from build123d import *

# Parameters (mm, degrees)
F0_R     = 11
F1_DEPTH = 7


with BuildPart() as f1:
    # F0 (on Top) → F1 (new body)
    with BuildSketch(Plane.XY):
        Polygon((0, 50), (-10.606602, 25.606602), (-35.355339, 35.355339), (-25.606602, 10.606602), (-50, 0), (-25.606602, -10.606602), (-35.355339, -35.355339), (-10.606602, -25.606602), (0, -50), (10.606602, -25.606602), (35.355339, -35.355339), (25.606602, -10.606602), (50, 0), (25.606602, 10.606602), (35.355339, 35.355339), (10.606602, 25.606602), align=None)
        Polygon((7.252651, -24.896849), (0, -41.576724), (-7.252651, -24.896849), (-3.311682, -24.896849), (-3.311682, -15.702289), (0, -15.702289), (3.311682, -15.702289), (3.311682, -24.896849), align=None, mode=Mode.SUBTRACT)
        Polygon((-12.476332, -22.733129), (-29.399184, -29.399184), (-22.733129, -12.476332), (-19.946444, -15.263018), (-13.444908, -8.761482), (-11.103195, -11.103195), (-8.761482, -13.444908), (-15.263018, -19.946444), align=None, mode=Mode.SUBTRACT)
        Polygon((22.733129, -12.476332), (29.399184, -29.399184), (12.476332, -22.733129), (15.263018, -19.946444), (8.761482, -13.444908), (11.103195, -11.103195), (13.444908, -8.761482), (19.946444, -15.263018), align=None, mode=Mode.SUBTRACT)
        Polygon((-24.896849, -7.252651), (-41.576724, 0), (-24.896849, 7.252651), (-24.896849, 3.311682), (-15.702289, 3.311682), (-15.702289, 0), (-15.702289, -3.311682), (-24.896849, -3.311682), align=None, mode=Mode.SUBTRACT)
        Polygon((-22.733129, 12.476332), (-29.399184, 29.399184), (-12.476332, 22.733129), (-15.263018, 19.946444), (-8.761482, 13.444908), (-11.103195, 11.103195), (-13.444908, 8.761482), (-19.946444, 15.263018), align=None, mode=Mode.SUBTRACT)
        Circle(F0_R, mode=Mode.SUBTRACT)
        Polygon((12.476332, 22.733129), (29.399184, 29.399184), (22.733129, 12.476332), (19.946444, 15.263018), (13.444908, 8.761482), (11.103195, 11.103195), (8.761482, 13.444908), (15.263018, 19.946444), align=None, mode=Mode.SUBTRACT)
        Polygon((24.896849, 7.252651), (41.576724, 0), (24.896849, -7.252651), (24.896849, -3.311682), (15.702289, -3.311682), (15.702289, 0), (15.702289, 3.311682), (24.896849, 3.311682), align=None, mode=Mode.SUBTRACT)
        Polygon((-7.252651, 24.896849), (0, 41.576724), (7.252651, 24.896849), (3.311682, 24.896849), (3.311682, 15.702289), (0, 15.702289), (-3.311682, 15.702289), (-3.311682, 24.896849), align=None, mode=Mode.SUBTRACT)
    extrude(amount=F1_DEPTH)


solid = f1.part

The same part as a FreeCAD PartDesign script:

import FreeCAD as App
import Part
import Sketcher
from FreeCAD import Vector


def add_polygon(sketch, points):
    """Adds a closed chain of lines whose ends are joined by coincident constraints."""
    first, n = sketch.GeometryCount, len(points)
    for a, b in zip(points, points[1:] + points[:1]):
        sketch.addGeometry(Part.LineSegment(App.Vector(*a, 0), App.Vector(*b, 0)), False)
    for i in range(n):
        sketch.addConstraint(Sketcher.Constraint("Coincident", first + i, 2, first + (i + 1) % n, 1))

doc = App.newDocument("Part")
body = doc.addObject("PartDesign::Body", "Body")

# Sketch on XY plane
sketch1 = body.newObject("Sketcher::SketchObject", "Sketch")
sketch1.AttachmentSupport = (doc.getObject("XY_Plane"), [""])
sketch1.MapMode = "FlatFace"
add_polygon(sketch1, [(0, 50), (-10.6, 25.6), (-35.4, 35.4), (-25.6, 10.6), (-50, 0), (-25.6, -10.6), (-35.4, -35.4), (-10.6, -25.6), (0, -50), (10.6, -25.6), (35.4, -35.4), (25.6, -10.6), (50, 0), (25.6, 10.6), (35.4, 35.4), (10.6, 25.6)])  # lines 0-15
add_polygon(sketch1, [(-15.3, -19.9), (-12.5, -22.7), (-29.4, -29.4), (-22.7, -12.5), (-19.9, -15.3), (-13.4, -8.8), (-8.8, -13.4)])  # lines 16-22
add_polygon(sketch1, [(3.3, -24.9), (7.3, -24.9), (0, -41.6), (-7.3, -24.9), (-3.3, -24.9), (-3.3, -15.7), (3.3, -15.7)])  # lines 23-29
add_polygon(sketch1, [(19.9, -15.3), (22.7, -12.5), (29.4, -29.4), (12.5, -22.7), (15.3, -19.9), (8.8, -13.4), (13.4, -8.8)])  # lines 30-36
add_polygon(sketch1, [(-24.9, -3.3), (-24.9, -7.3), (-41.6, 0), (-24.9, 7.3), (-24.9, 3.3), (-15.7, 3.3), (-15.7, -3.3)])  # lines 37-43
add_polygon(sketch1, [(-19.9, 15.3), (-22.7, 12.5), (-29.4, 29.4), (-12.5, 22.7), (-15.3, 19.9), (-8.8, 13.4), (-13.4, 8.8)])  # lines 44-50
sketch1.addGeometry(Part.Circle(Vector(0, 0, 0), Vector(0, 0, 1), 11), False)  # 51
add_polygon(sketch1, [(15.3, 19.9), (12.5, 22.7), (29.4, 29.4), (22.7, 12.5), (19.9, 15.3), (13.4, 8.8), (8.8, 13.4)])  # lines 52-58
add_polygon(sketch1, [(24.9, 3.3), (24.9, 7.3), (41.6, 0), (24.9, -7.3), (24.9, -3.3), (15.7, -3.3), (15.7, 3.3)])  # lines 59-65
add_polygon(sketch1, [(-3.3, 24.9), (-7.3, 24.9), (0, 41.6), (7.3, 24.9), (3.3, 24.9), (3.3, 15.7), (-3.3, 15.7)])  # lines 66-72
sketch1.addConstraint([
    Sketcher.Constraint("Horizontal", 23),
    Sketcher.Constraint("Horizontal", 26),
    Sketcher.Constraint("Vertical", 27),
    Sketcher.Constraint("Horizontal", 28),
    Sketcher.Constraint("Vertical", 29),
    Sketcher.Constraint("Vertical", 37),
    Sketcher.Constraint("Vertical", 40),
    Sketcher.Constraint("Horizontal", 41),
    Sketcher.Constraint("Vertical", 42),
    Sketcher.Constraint("Horizontal", 43),
    Sketcher.Constraint("Vertical", 59),
    Sketcher.Constraint("Vertical", 62),
    Sketcher.Constraint("Horizontal", 63),
    Sketcher.Constraint("Vertical", 64),
    Sketcher.Constraint("Horizontal", 65),
    Sketcher.Constraint("Horizontal", 66),
    Sketcher.Constraint("Horizontal", 69),
    Sketcher.Constraint("Vertical", 70),
    Sketcher.Constraint("Horizontal", 71),
    Sketcher.Constraint("Vertical", 72),
    Sketcher.Constraint("Coincident", 51, 3, -1, 1),
    Sketcher.Constraint("Symmetric", 0, 2, 8, 2, -1, 1),
    Sketcher.Constraint("Symmetric", 1, 2, 9, 2, -1, 1),
    Sketcher.Constraint("Symmetric", 2, 2, 10, 2, -1, 1),
    Sketcher.Constraint("Symmetric", 3, 2, 11, 2, -1, 1),
    Sketcher.Constraint("Symmetric", 4, 2, 12, 2, -1, 1),
    Sketcher.Constraint("Symmetric", 5, 2, 13, 2, -1, 1),
    Sketcher.Constraint("Symmetric", 6, 2, 14, 2, -1, 1),
    Sketcher.Constraint("Symmetric", 7, 2, 15, 2, -1, 1),
    Sketcher.Constraint("Symmetric", 30, 2, 44, 2, -1, 1),
    Sketcher.Constraint("Symmetric", 31, 2, 45, 2, -1, 1),
    Sketcher.Constraint("Symmetric", 32, 2, 46, 2, -1, 1),
    Sketcher.Constraint("Symmetric", 33, 2, 47, 2, -1, 1),
    Sketcher.Constraint("Symmetric", 34, 2, 48, 2, -1, 1),
    Sketcher.Constraint("Symmetric", 35, 2, 49, 2, -1, 1),
    Sketcher.Constraint("Symmetric", 36, 2, 50, 2, -1, 1),
    Sketcher.Constraint("Symmetric", 16, 2, 52, 2, -1, 1),
    Sketcher.Constraint("Symmetric", 17, 2, 53, 2, -1, 1),
    Sketcher.Constraint("Symmetric", 18, 2, 54, 2, -1, 1),
    Sketcher.Constraint("Symmetric", 19, 2, 55, 2, -1, 1),
    Sketcher.Constraint("Symmetric", 20, 2, 56, 2, -1, 1),
    Sketcher.Constraint("Symmetric", 21, 2, 57, 2, -1, 1),
    Sketcher.Constraint("Symmetric", 22, 2, 58, 2, -1, 1),
    Sketcher.Constraint("Symmetric", 37, 2, 59, 2, -1, 1),
    Sketcher.Constraint("Symmetric", 38, 2, 60, 2, -1, 1),
    Sketcher.Constraint("Symmetric", 39, 2, 61, 2, -1, 1),
    Sketcher.Constraint("Symmetric", 41, 2, 63, 2, -1, 1),
    Sketcher.Constraint("Symmetric", 23, 2, 66, 2, -1, 1),
    Sketcher.Constraint("Symmetric", 24, 2, 67, 2, -1, 1),
    Sketcher.Constraint("Symmetric", 25, 2, 68, 2, -1, 1),
    Sketcher.Constraint("Symmetric", 27, 2, 70, 2, -1, 1),
    Sketcher.Constraint("Symmetric", 6, 2, 8, 2, -2),
    Sketcher.Constraint("Symmetric", 5, 2, 9, 2, -2),
    Sketcher.Constraint("Symmetric", 4, 2, 10, 2, -2),
    Sketcher.Constraint("Symmetric", 23, 2, 25, 2, -2),
    Sketcher.Constraint("Symmetric", 18, 2, 30, 2, -2),
    Sketcher.Constraint("Symmetric", 17, 2, 31, 2, -2),
    Sketcher.Constraint("Symmetric", 16, 2, 32, 2, -2),
    Sketcher.Constraint("Symmetric", 22, 2, 33, 2, -2),
    Sketcher.Constraint("Symmetric", 21, 2, 34, 2, -2),
    Sketcher.Constraint("Symmetric", 20, 2, 35, 2, -2),
    Sketcher.Constraint("Symmetric", 19, 2, 36, 2, -2),
    Sketcher.Constraint("Symmetric", 39, 2, 59, 2, -2),
    Sketcher.Constraint("PointOnObject", 3, 2, -1),
    Sketcher.Constraint("PointOnObject", 7, 2, -2),
    Sketcher.Constraint("PointOnObject", 24, 2, -2),
    Sketcher.Constraint("PointOnObject", 38, 2, -1),
    Sketcher.Constraint("Perpendicular", 0, 4),
    Sketcher.Constraint("Perpendicular", 1, 5),
    Sketcher.Constraint("Parallel", 14, 17),
    Sketcher.Constraint("Parallel", 13, 18),
    Sketcher.Constraint("Parallel", 16, 19),
    Sketcher.Constraint("Perpendicular", 19, 20),
    Sketcher.Constraint("Perpendicular", 20, 21),
    Sketcher.Constraint("Perpendicular", 21, 22),
    Sketcher.Constraint("Perpendicular", 12, 24),
    Sketcher.Constraint("Parallel", 22, 30),
    Sketcher.Constraint("Perpendicular", 24, 38),
    Sketcher.Constraint("Horizontal", 43, 2, 62, 2),
    Sketcher.Constraint("Horizontal", 41, 2, 64, 2),
    Sketcher.Constraint("Vertical", 29, 2, 69, 2),
    Sketcher.Constraint("Vertical", 27, 2, 71, 2),
    Sketcher.Constraint("Equal", 65, 27),
    Sketcher.Constraint("Equal", 69, 37),
    Sketcher.Constraint("Equal", 71, 42),
    Sketcher.Constraint("Equal", 0, 1),
    Sketcher.Constraint("Equal", 1, 2),
    Sketcher.Constraint("Equal", 2, 3),
    Sketcher.Constraint("Equal", 17, 18),
    Sketcher.Constraint("Equal", 16, 19),
    Sketcher.Constraint("Equal", 18, 24),
    Sketcher.Constraint("Diameter", 51, 22.0),
    Sketcher.Constraint("DistanceX", 3, 2, -1, 1, 50.0),
    Sketcher.Constraint("DistanceX", 23, 1, 23, 2, 3.940969),
    Sketcher.Constraint("DistanceX", 41, 1, 41, 2, 9.19456),
    Sketcher.Constraint("DistanceY", -1, 1, 0, 2, 25.606602),
    Sketcher.Constraint("Distance", 16, 3.940968),
    Sketcher.Constraint("Distance", 20, 9.19456),
    Sketcher.Constraint("DistanceX", 28, 1, 28, 2, 6.623364),
    Sketcher.Constraint("DistanceX", 1, 2, -1, 1, 35.355339),
    Sketcher.Constraint("DistanceX", 16, 2, -1, 1, 12.476332),
    Sketcher.Constraint("DistanceY", 16, 2, -1, 1, 22.733129),
    Sketcher.Constraint("DistanceY", 23, 2, -1, 1, 24.896849),
    Sketcher.Constraint("DistanceX", 37, 2, -1, 1, 24.896849),
])
pad1 = body.newObject("PartDesign::Pad", "Pad")
pad1.Profile = sketch1
pad1.Length = 7

doc.recompute()
